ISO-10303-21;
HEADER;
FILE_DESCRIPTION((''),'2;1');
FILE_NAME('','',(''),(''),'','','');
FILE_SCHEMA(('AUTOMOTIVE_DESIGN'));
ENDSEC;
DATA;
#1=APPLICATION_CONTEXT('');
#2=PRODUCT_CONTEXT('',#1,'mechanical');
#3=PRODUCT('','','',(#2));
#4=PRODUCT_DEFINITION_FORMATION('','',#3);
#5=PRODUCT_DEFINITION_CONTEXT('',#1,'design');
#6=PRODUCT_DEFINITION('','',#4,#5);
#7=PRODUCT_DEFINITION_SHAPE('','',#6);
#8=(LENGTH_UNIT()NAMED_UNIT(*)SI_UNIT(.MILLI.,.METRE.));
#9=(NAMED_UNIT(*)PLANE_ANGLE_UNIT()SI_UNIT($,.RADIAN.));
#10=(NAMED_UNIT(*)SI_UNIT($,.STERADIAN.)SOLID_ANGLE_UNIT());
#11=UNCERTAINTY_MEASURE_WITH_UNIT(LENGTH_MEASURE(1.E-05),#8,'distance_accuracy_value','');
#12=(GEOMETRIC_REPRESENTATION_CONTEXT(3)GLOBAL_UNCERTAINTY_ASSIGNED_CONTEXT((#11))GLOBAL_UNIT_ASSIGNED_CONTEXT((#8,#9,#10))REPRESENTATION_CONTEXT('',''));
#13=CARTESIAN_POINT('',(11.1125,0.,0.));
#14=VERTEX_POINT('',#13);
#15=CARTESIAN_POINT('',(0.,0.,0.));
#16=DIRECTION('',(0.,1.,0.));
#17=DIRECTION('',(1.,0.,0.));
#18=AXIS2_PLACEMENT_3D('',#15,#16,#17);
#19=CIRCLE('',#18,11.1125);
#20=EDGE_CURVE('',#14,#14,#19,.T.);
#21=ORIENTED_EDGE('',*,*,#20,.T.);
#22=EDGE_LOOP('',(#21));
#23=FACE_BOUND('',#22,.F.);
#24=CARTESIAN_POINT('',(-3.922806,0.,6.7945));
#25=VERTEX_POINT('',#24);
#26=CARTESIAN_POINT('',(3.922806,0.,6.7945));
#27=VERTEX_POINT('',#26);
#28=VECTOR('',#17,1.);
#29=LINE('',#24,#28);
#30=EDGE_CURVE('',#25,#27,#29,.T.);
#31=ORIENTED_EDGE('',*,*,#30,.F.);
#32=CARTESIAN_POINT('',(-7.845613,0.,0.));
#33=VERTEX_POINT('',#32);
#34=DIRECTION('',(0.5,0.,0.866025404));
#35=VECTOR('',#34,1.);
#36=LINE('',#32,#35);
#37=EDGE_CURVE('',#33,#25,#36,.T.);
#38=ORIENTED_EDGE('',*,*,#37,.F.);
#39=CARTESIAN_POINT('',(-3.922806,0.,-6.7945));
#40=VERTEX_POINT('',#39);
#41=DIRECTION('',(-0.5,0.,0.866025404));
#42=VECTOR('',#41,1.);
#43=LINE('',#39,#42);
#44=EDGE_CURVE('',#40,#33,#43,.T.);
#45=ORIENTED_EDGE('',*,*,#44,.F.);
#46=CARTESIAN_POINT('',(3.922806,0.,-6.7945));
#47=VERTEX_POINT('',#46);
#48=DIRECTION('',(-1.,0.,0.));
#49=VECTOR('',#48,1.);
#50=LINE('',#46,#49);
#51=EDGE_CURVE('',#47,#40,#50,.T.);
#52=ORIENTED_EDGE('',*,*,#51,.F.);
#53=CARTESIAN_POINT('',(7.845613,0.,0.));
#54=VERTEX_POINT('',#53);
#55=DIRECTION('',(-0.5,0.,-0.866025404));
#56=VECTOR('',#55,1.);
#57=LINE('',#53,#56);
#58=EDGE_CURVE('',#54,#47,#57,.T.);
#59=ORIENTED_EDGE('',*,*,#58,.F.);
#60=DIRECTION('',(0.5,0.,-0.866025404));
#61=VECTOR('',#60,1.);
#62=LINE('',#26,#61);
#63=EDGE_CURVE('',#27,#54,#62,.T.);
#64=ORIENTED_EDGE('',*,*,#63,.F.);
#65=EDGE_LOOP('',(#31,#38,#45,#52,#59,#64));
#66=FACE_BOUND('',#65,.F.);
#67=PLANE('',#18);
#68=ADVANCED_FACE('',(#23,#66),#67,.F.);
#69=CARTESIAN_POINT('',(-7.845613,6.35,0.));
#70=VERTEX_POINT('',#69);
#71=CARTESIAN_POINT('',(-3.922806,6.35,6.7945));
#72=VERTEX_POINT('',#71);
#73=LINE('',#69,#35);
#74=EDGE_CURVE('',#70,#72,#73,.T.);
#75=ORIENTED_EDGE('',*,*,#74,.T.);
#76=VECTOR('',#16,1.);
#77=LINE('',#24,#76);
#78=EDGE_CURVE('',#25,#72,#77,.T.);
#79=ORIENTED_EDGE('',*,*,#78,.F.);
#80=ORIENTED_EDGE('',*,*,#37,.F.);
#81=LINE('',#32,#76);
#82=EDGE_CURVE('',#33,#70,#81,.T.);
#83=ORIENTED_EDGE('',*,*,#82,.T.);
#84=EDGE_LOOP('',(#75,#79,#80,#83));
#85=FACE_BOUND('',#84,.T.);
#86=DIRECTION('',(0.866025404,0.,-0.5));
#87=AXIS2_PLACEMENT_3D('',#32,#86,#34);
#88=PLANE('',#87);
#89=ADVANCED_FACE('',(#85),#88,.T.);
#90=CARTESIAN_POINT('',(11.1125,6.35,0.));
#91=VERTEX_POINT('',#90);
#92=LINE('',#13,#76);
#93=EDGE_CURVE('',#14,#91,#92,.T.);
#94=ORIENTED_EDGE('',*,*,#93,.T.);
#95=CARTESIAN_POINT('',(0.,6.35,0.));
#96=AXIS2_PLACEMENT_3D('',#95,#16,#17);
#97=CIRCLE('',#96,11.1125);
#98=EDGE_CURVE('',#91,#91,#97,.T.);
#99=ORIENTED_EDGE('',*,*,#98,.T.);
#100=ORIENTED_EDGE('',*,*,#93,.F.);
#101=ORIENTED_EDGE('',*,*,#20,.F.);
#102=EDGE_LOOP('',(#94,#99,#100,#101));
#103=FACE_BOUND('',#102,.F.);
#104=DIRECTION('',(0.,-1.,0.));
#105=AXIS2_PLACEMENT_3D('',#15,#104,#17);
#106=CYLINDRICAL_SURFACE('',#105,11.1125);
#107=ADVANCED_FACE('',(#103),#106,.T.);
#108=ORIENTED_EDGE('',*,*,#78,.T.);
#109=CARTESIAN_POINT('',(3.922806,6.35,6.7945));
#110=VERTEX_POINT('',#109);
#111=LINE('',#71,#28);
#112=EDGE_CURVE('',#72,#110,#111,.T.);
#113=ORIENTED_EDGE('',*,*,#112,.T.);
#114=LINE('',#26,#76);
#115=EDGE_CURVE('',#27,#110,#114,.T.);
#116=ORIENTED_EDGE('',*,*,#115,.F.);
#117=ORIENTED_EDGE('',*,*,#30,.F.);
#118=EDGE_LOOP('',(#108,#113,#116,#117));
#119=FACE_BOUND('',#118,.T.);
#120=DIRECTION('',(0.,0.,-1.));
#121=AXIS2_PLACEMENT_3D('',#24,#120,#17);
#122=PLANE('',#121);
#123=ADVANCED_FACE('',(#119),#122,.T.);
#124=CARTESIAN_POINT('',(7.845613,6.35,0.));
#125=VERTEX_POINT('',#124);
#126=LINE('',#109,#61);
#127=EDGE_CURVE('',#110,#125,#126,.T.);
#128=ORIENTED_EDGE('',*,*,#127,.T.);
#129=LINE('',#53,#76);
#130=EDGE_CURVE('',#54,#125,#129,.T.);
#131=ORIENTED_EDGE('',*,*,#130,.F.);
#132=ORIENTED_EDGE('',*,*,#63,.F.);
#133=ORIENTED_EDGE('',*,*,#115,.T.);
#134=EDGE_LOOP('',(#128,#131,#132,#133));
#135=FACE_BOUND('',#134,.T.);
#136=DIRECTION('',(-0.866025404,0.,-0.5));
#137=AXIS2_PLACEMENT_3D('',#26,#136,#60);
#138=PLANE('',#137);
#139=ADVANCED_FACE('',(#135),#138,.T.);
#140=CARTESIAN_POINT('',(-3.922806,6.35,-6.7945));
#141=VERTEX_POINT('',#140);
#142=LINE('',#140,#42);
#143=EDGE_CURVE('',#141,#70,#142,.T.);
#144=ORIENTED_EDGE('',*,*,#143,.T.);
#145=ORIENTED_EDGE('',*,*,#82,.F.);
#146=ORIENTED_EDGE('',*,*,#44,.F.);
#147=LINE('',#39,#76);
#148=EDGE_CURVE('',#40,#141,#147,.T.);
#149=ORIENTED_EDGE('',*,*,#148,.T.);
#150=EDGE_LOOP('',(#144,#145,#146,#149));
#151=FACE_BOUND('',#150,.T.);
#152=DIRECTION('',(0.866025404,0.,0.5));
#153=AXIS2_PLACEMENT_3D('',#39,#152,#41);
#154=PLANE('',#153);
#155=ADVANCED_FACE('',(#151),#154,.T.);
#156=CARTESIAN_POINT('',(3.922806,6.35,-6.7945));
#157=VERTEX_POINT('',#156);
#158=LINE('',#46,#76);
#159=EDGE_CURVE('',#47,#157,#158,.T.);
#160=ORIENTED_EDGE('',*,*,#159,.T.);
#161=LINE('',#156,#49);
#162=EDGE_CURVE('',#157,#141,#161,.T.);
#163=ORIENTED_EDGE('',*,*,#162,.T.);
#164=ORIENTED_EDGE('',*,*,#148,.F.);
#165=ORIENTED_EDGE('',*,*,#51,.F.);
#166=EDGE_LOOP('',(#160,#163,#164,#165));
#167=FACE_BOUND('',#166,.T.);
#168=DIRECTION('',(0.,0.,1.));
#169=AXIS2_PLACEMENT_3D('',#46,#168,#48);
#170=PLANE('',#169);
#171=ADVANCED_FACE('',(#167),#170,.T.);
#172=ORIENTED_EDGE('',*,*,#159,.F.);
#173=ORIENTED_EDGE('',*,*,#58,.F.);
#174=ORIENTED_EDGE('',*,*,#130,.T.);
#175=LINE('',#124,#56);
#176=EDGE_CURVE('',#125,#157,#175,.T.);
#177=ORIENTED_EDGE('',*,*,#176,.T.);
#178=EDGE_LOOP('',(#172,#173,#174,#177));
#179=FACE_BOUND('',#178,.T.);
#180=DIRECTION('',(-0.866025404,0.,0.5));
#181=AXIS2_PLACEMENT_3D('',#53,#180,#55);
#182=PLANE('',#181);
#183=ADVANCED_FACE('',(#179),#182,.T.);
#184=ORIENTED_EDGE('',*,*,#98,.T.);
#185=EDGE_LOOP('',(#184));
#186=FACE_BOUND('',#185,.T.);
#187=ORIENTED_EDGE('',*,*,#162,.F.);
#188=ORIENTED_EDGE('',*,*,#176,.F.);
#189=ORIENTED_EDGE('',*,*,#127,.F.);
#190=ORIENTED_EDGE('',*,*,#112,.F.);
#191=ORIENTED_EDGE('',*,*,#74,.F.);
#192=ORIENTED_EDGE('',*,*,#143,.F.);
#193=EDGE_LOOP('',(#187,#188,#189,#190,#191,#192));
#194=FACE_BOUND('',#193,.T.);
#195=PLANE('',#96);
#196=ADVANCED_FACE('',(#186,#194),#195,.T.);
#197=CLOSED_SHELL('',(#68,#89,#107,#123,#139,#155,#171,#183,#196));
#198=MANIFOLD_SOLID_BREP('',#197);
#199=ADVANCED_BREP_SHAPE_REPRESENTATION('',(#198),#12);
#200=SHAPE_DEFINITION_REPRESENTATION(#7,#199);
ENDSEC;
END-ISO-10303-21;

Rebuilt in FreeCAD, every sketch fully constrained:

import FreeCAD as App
import Part
import Sketcher
from FreeCAD import Vector
Q = App.Units.Quantity


def add_polygon(sketch, points):
    """Adds a closed chain of lines whose ends are joined by coincident constraints."""
    first, n = sketch.GeometryCount, len(points)
    for a, b in zip(points, points[1:] + points[:1]):
        sketch.addGeometry(Part.LineSegment(App.Vector(*a, 0), App.Vector(*b, 0)), False)
    for i in range(n):
        sketch.addConstraint(Sketcher.Constraint("Coincident", first + i, 2, first + (i + 1) % n, 1))

doc = App.newDocument("Part")
body = doc.addObject("PartDesign::Body", "Body")

# Sketch on XZ plane
sketch1 = body.newObject("Sketcher::SketchObject", "Sketch")
sketch1.AttachmentSupport = (doc.getObject("XZ_Plane"), [""])
sketch1.MapMode = "FlatFace"
sketch1.addGeometry(Part.Circle(Vector(0, 0, 0), Vector(0, 0, 1), 11.1125), False)  # 0
add_polygon(sketch1, [(3.922806, -6.7945), (7.845613, 0), (3.922806, 6.7945), (-3.922806, 6.7945), (-7.845613, 0), (-3.922806, -6.7945)])  # lines 1-6
sketch1.addConstraint([
    Sketcher.Constraint("Horizontal", 3),
    Sketcher.Constraint("Horizontal", 6),
    Sketcher.Constraint("Coincident", 0, 3, -1, 1),
    Sketcher.Constraint("Symmetric", 1, 2, 4, 2, -1, 1),
    Sketcher.Constraint("Symmetric", 2, 2, 5, 2, -1, 1),
    Sketcher.Constraint("PointOnObject", 1, 2, -1),
    Sketcher.Constraint("Parallel", 1, 4),
    Sketcher.Constraint("Vertical", 3, 2, 5, 2),
    Sketcher.Constraint("Diameter", 0, Q("0.875 in")),
    Sketcher.Constraint("Angle", 1, Q("60 deg")),
    Sketcher.Constraint("DistanceY", 5, 2, 3, 2, Q("0.535 in")),
    Sketcher.Constraint("DistanceX", 3, 2, 3, 1, Q("7.845613 mm")),
])
pad1 = body.newObject("PartDesign::Pad", "Pad")
pad1.Profile = sketch1
pad1.Length = Q("0.25 in")
pad1.Reversed = True

doc.recompute()
